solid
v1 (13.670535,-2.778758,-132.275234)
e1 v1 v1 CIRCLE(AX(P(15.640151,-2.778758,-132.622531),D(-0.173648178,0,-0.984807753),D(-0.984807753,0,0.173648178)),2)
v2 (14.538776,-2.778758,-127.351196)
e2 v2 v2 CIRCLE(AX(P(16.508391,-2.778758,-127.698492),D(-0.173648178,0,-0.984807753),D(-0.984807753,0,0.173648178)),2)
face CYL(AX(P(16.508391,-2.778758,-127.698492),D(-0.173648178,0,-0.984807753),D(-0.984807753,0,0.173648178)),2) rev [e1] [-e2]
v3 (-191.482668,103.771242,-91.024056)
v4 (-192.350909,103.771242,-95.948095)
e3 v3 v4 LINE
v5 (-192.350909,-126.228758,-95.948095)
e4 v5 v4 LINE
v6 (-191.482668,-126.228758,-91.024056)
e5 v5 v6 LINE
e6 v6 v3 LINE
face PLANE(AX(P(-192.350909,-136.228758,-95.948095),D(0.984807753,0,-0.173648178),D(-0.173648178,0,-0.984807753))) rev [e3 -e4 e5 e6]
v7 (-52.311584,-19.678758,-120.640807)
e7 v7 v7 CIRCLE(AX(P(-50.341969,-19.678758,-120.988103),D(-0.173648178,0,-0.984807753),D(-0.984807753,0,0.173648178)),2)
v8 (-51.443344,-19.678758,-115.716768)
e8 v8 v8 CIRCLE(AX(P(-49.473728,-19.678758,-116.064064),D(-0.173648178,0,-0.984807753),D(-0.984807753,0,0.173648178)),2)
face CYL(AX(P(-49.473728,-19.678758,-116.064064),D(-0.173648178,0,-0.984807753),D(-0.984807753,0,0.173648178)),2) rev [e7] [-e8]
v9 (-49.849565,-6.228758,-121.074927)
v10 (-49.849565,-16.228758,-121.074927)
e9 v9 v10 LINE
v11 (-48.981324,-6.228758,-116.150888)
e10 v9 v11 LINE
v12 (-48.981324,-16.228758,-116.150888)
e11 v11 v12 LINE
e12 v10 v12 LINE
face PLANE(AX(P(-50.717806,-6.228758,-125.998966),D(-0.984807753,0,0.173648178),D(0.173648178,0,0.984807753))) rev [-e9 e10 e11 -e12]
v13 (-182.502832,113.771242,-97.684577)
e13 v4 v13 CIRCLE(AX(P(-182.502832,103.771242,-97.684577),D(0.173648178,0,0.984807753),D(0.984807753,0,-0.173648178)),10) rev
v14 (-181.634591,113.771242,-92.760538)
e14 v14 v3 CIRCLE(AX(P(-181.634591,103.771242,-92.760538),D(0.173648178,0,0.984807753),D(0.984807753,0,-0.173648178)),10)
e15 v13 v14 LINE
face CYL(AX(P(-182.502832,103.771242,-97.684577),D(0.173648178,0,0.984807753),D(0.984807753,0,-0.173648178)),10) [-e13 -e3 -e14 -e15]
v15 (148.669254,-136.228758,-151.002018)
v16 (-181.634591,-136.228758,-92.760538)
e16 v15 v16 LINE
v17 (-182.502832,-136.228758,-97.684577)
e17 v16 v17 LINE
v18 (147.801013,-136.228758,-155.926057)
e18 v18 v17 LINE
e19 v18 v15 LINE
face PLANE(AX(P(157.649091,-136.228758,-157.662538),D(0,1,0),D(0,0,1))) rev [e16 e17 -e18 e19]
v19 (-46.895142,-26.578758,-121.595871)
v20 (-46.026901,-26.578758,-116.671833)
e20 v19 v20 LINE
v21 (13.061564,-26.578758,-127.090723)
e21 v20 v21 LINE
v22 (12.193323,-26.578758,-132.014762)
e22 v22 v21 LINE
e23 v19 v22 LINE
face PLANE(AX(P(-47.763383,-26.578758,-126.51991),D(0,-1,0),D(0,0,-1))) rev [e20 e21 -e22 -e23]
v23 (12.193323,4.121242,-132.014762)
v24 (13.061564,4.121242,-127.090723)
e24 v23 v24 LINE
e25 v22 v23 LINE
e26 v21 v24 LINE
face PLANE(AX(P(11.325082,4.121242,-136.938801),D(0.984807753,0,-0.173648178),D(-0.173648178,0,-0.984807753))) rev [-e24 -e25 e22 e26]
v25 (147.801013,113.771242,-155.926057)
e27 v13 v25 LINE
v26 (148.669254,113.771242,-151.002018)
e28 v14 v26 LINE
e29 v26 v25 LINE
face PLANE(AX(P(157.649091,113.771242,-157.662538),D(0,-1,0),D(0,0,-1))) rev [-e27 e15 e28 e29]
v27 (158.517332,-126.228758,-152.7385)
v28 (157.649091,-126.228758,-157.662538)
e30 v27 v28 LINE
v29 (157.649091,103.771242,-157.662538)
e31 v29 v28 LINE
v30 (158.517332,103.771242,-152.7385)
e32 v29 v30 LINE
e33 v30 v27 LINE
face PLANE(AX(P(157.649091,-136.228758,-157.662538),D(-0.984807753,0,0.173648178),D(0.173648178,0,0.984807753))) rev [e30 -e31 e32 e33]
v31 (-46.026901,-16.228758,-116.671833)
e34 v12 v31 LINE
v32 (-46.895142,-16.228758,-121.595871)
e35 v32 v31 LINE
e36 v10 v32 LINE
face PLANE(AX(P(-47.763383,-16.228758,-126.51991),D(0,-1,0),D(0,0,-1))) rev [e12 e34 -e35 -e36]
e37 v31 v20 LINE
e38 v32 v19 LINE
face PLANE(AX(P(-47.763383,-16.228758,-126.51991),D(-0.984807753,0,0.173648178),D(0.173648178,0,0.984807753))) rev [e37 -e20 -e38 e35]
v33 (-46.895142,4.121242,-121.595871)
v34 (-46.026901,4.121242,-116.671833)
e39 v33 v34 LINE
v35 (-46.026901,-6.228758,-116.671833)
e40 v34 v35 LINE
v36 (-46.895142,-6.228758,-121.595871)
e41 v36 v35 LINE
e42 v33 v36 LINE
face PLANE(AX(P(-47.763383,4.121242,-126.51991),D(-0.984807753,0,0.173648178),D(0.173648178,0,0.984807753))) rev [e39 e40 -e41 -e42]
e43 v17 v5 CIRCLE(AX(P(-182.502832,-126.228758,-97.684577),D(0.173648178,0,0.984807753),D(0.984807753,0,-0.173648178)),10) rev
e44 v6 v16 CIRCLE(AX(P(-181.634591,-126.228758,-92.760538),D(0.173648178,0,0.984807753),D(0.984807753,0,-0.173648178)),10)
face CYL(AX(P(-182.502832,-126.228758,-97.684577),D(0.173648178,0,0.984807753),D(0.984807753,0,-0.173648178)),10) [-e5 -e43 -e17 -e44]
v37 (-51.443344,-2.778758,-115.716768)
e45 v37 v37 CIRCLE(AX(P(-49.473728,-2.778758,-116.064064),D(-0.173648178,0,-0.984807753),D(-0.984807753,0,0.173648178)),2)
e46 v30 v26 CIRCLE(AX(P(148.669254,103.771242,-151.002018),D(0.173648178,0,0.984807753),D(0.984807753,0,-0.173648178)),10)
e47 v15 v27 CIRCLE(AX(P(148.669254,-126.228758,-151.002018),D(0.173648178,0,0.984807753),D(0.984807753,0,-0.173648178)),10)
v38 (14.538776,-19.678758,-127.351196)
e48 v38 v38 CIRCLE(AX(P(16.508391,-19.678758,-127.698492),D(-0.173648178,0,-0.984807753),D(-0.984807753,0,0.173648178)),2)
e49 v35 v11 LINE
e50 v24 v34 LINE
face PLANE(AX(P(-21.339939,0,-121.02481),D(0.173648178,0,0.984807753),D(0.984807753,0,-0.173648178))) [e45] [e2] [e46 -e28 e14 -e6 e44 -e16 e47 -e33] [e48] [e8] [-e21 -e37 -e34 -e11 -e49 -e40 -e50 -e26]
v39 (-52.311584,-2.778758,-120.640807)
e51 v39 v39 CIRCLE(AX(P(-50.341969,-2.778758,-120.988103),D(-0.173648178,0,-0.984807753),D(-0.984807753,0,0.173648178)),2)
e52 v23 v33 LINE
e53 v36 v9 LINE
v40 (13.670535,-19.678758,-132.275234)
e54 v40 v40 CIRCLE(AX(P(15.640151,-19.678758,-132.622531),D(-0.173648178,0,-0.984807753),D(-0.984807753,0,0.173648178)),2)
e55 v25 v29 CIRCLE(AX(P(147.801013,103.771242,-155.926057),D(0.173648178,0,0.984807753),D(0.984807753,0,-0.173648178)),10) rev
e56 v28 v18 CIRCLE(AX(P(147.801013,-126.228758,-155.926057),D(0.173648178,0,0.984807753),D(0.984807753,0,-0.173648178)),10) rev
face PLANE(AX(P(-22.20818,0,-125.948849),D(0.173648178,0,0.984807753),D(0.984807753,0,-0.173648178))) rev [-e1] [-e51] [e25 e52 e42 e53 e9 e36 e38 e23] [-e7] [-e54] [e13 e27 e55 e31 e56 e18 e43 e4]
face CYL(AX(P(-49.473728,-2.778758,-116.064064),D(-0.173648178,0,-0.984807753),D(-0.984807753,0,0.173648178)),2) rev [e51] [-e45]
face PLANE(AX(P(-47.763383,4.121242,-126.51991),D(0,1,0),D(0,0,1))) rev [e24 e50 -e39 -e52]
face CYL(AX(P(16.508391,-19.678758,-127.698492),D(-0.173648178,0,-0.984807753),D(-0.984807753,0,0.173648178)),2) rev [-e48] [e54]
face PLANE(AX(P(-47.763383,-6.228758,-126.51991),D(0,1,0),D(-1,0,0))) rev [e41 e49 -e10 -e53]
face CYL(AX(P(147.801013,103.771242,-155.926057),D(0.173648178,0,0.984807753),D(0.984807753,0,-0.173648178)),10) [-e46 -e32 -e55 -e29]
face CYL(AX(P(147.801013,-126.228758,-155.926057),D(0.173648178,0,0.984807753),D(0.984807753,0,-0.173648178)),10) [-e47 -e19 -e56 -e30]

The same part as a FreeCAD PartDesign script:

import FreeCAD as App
import Part
import Sketcher

V = App.Vector


def edges_at(feature, points):
    """Names of the edges that pass closest to the given points."""
    edges = feature.Shape.Edges
    near = lambda p: min(range(len(edges)), key=lambda i: edges[i].distToShape(Part.Vertex(*p))[0])
    return sorted({f"Edge{near(p) + 1}" for p in points})


def add_polygon(sketch, points):
    """Adds a closed chain of lines whose ends are joined by coincident constraints."""
    first, n = sketch.GeometryCount, len(points)
    for a, b in zip(points, points[1:] + points[:1]):
        sketch.addGeometry(Part.LineSegment(App.Vector(*a, 0), App.Vector(*b, 0)), False)
    for i in range(n):
        sketch.addConstraint(Sketcher.Constraint("Coincident", first + i, 2, first + (i + 1) % n, 1))

doc = App.newDocument("Part")
body = doc.addObject("PartDesign::Body", "Body")

# Sketch on an angled plane
sketch1 = body.newObject("Sketcher::SketchObject", "Sketch")
sketch1.Placement = App.Placement(V(-21.339939, 0, -121.02481), App.Rotation(V(-0.984807753, 0, 0.173648178), V(0, 1, 0), V(-0.173648178, 0, -0.984807753), "ZXY"))
add_polygon(sketch1, [(-182.631859, 113.771242), (-182.631859, -136.228758), (172.767455, -136.228758), (172.767455, 113.771242)])  # lines 0-3
sketch1.addConstraint(Sketcher.Constraint("Vertical", 0))
sketch1.addConstraint(Sketcher.Constraint("Horizontal", 1))
sketch1.addConstraint(Sketcher.Constraint("Vertical", 2))
sketch1.addConstraint(Sketcher.Constraint("Horizontal", 3))
sketch1.addConstraint(Sketcher.Constraint("DistanceY", 0, 2, 0, 1, 250.0))
sketch1.addConstraint(Sketcher.Constraint("DistanceX", 1, 1, 1, 2, 355.399314))
sketch1.addConstraint(Sketcher.Constraint("DistanceX", 0, 2, -1, 1, 182.631859))
sketch1.addConstraint(Sketcher.Constraint("DistanceY", 0, 2, -1, 1, 136.228758))
pad1 = body.newObject("PartDesign::Pad", "Pad")
pad1.Profile = sketch1
pad1.Length = 5

# Sketch on an angled plane
sketch2 = body.newObject("Sketcher::SketchObject", "Sketch001")
sketch2.Placement = App.Placement(V(-21.339939, 0, -121.02481), App.Rotation(V(0.984807753, 0, -0.173648178), V(0, 1, 0), V(0.173648178, 0, 0.984807753), "ZXY"))
add_polygon(sketch2, [(-25.067798, -16.228758), (-25.067798, -26.578758), (34.932202, -26.578758), (34.932202, 4.121242), (-25.067798, 4.121242), (-25.067798, -6.228758), (-28.067798, -6.228758), (-28.067798, -16.228758)])  # lines 0-7
sketch2.addConstraint(Sketcher.Constraint("Vertical", 0))
sketch2.addConstraint(Sketcher.Constraint("Horizontal", 1))
sketch2.addConstraint(Sketcher.Constraint("Vertical", 2))
sketch2.addConstraint(Sketcher.Constraint("Horizontal", 3))
sketch2.addConstraint(Sketcher.Constraint("Vertical", 4))
sketch2.addConstraint(Sketcher.Constraint("Horizontal", 5))
sketch2.addConstraint(Sketcher.Constraint("Vertical", 6))
sketch2.addConstraint(Sketcher.Constraint("Horizontal", 7))
sketch2.addConstraint(Sketcher.Constraint("Vertical", 0, 2, 3, 2))
sketch2.addConstraint(Sketcher.Constraint("Equal", 0, 4))
sketch2.addConstraint(Sketcher.Constraint("DistanceX", 1, 1, 1, 2, 60.0))
sketch2.addConstraint(Sketcher.Constraint("DistanceX", 5, 2, 5, 1, 3.0))
sketch2.addConstraint(Sketcher.Constraint("DistanceY", 6, 2, 6, 1, 10.0))
sketch2.addConstraint(Sketcher.Constraint("DistanceY", 2, 1, 2, 2, 30.7))
sketch2.addConstraint(Sketcher.Constraint("DistanceX", 0, 2, -1, 1, 25.067798))
sketch2.addConstraint(Sketcher.Constraint("DistanceY", 0, 2, -1, 1, 26.578758))
pocket1 = body.newObject("PartDesign::Pocket", "Pocket")
pocket1.Profile = sketch2
pocket1.Length = 10

# Sketch on an angled plane
sketch3 = body.newObject("Sketcher::SketchObject", "Sketch002")
sketch3.Placement = App.Placement(V(-22.20818, 0, -125.948849), App.Rotation(V(-0.984807753, 0, 0.173648178), V(0, 1, 0), V(-0.173648178, 0, -0.984807753), "ZXY"))
sketch3.addGeometry(Part.Circle(V(28.567798, -19.678758, 0), V(0, 0, 1), 2), False)
sketch3.addGeometry(Part.Circle(V(28.567798, -2.778758, 0), V(0, 0, 1), 2), False)
sketch3.addGeometry(Part.Circle(V(-38.432202, -2.778758, 0), V(0, 0, 1), 2), False)
sketch3.addGeometry(Part.Circle(V(-38.432202, -19.678758, 0), V(0, 0, 1), 2), False)
sketch3.addConstraint(Sketcher.Constraint("Equal", 0, 1))
sketch3.addConstraint(Sketcher.Constraint("Equal", 1, 2))
sketch3.addConstraint(Sketcher.Constraint("Equal", 2, 3))
sketch3.addConstraint(Sketcher.Constraint("Horizontal", 1, 3, 2, 3))
sketch3.addConstraint(Sketcher.Constraint("Horizontal", 0, 3, 3, 3))
sketch3.addConstraint(Sketcher.Constraint("Vertical", 0, 3, 1, 3))
sketch3.addConstraint(Sketcher.Constraint("Vertical", 2, 3, 3, 3))
sketch3.addConstraint(Sketcher.Constraint("Diameter", 0, 4.0))
sketch3.addConstraint(Sketcher.Constraint("DistanceX", 2, 3, 1, 3, 67.0))
sketch3.addConstraint(Sketcher.Constraint("DistanceY", 0, 3, 1, 3, 16.9))
sketch3.addConstraint(Sketcher.Constraint("DistanceX", -1, 1, 0, 3, 28.567798))
sketch3.addConstraint(Sketcher.Constraint("DistanceY", 0, 3, -1, 1, 19.678758))
pocket2 = body.newObject("PartDesign::Pocket", "Pocket001")
pocket2.Profile = sketch3
pocket2.Length = 5
doc.recompute()

fillet = body.newObject("PartDesign::Fillet", "Fillet")
fillet.Base = (pocket2, edges_at(pocket2, [
    (158.083, 113.771, -155.201),
    (-191.917, 113.771, -93.486),
    (-191.917, -136.229, -93.486),
    (158.083, -136.229, -155.201),
]))
fillet.Radius = 10

doc.recompute()
